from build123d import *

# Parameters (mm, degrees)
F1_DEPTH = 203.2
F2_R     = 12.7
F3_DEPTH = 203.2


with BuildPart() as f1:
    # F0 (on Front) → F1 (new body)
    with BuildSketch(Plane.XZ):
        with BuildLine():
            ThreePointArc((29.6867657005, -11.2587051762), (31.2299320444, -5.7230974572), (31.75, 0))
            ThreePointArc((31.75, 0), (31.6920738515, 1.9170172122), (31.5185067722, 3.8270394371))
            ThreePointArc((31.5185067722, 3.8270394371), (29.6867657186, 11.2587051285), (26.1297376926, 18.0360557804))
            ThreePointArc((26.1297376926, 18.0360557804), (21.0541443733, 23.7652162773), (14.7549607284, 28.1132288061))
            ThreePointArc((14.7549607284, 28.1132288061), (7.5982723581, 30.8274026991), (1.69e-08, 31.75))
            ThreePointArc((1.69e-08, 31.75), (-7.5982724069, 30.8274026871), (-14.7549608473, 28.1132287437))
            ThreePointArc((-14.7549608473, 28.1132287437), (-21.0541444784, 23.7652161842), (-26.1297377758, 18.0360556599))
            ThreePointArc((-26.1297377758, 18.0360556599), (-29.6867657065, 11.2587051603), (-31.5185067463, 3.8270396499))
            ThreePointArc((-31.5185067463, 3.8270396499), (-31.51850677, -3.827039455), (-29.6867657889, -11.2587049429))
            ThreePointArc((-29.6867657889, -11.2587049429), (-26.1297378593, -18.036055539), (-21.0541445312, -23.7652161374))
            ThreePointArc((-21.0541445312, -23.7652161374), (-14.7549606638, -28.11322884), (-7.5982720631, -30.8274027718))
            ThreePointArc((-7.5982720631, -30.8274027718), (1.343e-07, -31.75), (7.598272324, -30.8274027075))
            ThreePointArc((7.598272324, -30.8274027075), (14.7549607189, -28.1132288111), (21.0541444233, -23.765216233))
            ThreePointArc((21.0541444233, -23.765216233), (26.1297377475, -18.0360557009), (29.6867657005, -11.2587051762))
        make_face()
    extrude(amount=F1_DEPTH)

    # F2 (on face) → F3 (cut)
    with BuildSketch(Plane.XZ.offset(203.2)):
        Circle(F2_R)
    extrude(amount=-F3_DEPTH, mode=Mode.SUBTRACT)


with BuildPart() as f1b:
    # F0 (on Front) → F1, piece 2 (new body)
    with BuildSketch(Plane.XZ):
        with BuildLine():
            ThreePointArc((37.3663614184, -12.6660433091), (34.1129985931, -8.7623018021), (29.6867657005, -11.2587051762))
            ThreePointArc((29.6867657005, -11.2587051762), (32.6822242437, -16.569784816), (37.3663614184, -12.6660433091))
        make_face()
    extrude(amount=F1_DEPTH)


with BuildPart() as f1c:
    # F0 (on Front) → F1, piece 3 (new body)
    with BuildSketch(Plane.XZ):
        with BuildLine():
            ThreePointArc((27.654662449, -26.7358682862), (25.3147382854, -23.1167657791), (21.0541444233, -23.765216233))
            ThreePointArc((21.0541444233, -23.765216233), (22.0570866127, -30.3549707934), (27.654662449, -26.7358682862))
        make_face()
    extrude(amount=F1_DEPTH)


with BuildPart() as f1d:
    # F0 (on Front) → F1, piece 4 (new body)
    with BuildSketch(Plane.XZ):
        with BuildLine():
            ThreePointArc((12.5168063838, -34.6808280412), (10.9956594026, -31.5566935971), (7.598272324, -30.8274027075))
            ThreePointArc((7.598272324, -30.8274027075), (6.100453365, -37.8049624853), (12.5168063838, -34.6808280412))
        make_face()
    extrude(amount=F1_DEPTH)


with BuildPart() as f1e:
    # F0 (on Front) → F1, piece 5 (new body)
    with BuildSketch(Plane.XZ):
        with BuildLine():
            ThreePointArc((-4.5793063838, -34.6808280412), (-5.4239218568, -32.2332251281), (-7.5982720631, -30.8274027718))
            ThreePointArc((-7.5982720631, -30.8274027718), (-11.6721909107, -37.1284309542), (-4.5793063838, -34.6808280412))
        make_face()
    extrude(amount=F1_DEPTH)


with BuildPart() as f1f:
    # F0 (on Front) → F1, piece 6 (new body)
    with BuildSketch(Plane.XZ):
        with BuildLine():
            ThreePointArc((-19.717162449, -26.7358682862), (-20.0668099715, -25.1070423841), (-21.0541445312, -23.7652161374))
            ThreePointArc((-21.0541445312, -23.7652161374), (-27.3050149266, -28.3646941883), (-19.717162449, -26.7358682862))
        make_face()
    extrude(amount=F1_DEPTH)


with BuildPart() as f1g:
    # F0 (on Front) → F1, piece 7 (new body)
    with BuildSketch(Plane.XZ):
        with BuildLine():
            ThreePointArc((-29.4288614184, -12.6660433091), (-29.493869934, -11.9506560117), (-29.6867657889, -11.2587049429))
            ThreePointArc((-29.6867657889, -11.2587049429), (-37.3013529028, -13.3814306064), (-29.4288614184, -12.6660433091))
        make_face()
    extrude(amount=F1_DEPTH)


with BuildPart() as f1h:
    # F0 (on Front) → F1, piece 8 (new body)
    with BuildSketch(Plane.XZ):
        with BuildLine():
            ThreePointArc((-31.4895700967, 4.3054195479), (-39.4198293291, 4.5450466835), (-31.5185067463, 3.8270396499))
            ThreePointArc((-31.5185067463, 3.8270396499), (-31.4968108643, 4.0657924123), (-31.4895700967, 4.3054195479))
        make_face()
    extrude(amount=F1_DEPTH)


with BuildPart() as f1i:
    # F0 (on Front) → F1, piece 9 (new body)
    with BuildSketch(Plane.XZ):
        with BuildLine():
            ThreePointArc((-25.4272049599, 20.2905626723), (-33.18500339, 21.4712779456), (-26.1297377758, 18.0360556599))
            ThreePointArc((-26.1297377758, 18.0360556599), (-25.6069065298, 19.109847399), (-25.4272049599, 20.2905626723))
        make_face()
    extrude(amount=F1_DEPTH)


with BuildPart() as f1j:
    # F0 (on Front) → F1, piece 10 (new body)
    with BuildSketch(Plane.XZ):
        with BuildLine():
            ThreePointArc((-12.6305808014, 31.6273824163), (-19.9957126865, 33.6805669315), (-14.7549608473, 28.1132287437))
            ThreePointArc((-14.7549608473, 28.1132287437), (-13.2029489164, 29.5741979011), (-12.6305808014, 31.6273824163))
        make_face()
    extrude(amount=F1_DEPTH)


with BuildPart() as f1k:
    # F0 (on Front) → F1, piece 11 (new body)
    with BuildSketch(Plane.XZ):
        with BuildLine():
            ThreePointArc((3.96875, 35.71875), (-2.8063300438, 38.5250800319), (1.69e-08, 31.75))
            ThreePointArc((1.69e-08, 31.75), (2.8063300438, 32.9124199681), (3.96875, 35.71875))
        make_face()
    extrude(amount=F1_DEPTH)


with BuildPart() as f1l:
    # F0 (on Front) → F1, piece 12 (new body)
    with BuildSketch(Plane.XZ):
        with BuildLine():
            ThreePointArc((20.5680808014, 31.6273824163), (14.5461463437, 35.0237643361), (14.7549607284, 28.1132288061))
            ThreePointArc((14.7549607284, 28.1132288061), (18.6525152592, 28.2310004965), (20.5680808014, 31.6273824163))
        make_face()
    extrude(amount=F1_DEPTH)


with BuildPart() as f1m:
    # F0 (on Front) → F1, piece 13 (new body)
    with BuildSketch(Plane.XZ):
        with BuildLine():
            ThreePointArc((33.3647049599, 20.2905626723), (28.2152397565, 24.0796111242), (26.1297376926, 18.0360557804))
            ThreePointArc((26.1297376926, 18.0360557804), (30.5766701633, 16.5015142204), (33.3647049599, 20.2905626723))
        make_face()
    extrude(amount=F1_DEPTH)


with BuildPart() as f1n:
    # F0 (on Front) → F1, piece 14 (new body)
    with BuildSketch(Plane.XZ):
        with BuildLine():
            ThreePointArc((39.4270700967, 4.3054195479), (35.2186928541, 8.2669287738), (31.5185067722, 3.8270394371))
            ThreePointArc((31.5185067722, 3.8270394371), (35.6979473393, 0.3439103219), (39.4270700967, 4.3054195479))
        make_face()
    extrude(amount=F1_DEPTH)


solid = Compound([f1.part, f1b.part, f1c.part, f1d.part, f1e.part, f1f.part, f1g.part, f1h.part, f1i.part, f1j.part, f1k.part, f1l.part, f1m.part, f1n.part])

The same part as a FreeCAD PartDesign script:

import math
import FreeCAD as App
import Part
import Sketcher

V = App.Vector
Q = App.Units.Quantity

doc = App.newDocument("Part")
params = doc.addObject("Spreadsheet::Sheet", "Params")
for row, (alias, value) in enumerate([
    ("sketch1_radius", "1.25 in"),
    ("pad1_length", "8 in"),
    ("sketch2_diameter", "1 in"),
    ("pocket1_length", "8 in"),
    ("sketch3_radius", "0.15625 in"),
    ("pad2_length", "8 in"),
    ("sketch4_radius", "0.15625 in"),
    ("pad3_length", "8 in"),
    ("sketch5_radius", "0.15625 in"),
    ("pad4_length", "8 in"),
    ("sketch6_radius", "0.15625 in"),
    ("pad5_length", "8 in"),
    ("sketch7_radius", "0.15625 in"),
    ("pad6_length", "8 in"),
    ("sketch8_radius", "0.15625 in"),
    ("pad7_length", "8 in"),
    ("sketch9_radius", "0.15625 in"),
    ("pad8_length", "8 in"),
    ("sketch10_radius", "0.15625 in"),
    ("pad9_length", "8 in"),
    ("sketch11_radius", "0.15625 in"),
    ("pad10_length", "8 in"),
    ("sketch12_radius", "0.15625 in"),
    ("pad11_length", "8 in"),
    ("sketch13_radius", "0.15625 in"),
    ("pad12_length", "8 in"),
    ("sketch14_radius", "0.15625 in"),
    ("pad13_length", "8 in"),
    ("sketch15_radius", "0.15625 in"),
    ("pad14_length", "8 in"),
], start=1):
    params.set(f"A{row}", alias)
    params.set(f"B{row}", "=" + value)
    params.setAlias(f"B{row}", alias)

body = doc.addObject("PartDesign::Body", "Body")

# Sketch on XZ plane
sketch1 = body.newObject("Sketcher::SketchObject", "Sketch")
sketch1.AttachmentSupport = (doc.getObject("XZ_Plane"), [""])
sketch1.MapMode = "FlatFace"
sketch1.addGeometry([
    Part.ArcOfCircle(Part.Circle(V(0, 0, 0), V(0, 0, 1), 31.7), math.radians(-21), math.radians(0)),  # 0
    Part.ArcOfCircle(Part.Circle(V(0, 0, 0), V(0, 0, 1), 31.8), math.radians(0), math.radians(6.92)),  # 1
    Part.ArcOfCircle(Part.Circle(V(0, 0, 0), V(0, 0, 1), 31.7), math.radians(7), math.radians(35)),  # 2
    Part.ArcOfCircle(Part.Circle(V(0, 0, 0), V(0, 0, 1), 31.8), math.radians(35), math.radians(62)),  # 3
    Part.ArcOfCircle(Part.Circle(V(0, 0, 0), V(0, 0, 1), 31.8), math.radians(62), math.radians(90)),  # 4
    Part.ArcOfCircle(Part.Circle(V(0, 0, 0), V(0, 0, 1), 31.7), math.radians(90), math.radians(145)),  # 5
    Part.ArcOfCircle(Part.Circle(V(0, 0, 0), V(0, 0, 1), 31.8), math.radians(145), math.radians(173)),  # 6
    Part.ArcOfCircle(Part.Circle(V(0, 0, 0), V(0, 0, 1), 31.7), math.radians(173), math.radians(201)),  # 7
    Part.ArcOfCircle(Part.Circle(V(0, 0, 0), V(0, 0, 1), 31.7), math.radians(-159), math.radians(-132)),  # 8
    Part.ArcOfCircle(Part.Circle(V(0, 0, 0), V(0, 0, 1), 31.7), math.radians(-132), math.radians(-104)),  # 9
    Part.ArcOfCircle(Part.Circle(V(0, 0, 0), V(0, 0, 1), 31.8), math.radians(-104), math.radians(-76)),  # 10
    Part.ArcOfCircle(Part.Circle(V(0, 0, 0), V(0, 0, 1), 31.7), math.radians(-76), math.radians(-48)),  # 11
    Part.ArcOfCircle(Part.Circle(V(0, 0, 0), V(0, 0, 1), 31.8), math.radians(-48), math.radians(-21)),  # 12
], False)
sketch1.addConstraint([
    Sketcher.Constraint("Tangent", 0, 2, 1, 1),
    Sketcher.Constraint("Tangent", 1, 2, 2, 1),
    Sketcher.Constraint("Tangent", 2, 2, 3, 1),
    Sketcher.Constraint("Tangent", 3, 2, 4, 1),
    Sketcher.Constraint("Tangent", 4, 2, 5, 1),
    Sketcher.Constraint("Tangent", 5, 2, 6, 1),
    Sketcher.Constraint("Tangent", 6, 2, 7, 1),
    Sketcher.Constraint("Tangent", 7, 2, 8, 1),
    Sketcher.Constraint("Tangent", 8, 2, 9, 1),
    Sketcher.Constraint("Tangent", 9, 2, 10, 1),
    Sketcher.Constraint("Tangent", 10, 2, 11, 1),
    Sketcher.Constraint("Tangent", 11, 2, 12, 1),
    Sketcher.Constraint("Tangent", 12, 2, 0, 1),
    Sketcher.Constraint("Coincident", 0, 3, -1, 1),
    Sketcher.Constraint("Coincident", 2, 3, -1, 1),
    Sketcher.Constraint("Coincident", 4, 3, -1, 1),
    Sketcher.Constraint("Coincident", 6, 3, -1, 1),
    Sketcher.Constraint("Coincident", 8, 3, -1, 1),
    Sketcher.Constraint("Coincident", 10, 3, -1, 1),
    Sketcher.Constraint("PointOnObject", 0, 2, -1),
    Sketcher.Constraint("PointOnObject", 4, 2, -2),
    Sketcher.Constraint("Horizontal", 2, 2, 5, 2),
    Sketcher.Constraint("Horizontal", 1, 2, 6, 2),
    Sketcher.Constraint("Horizontal", 9, 2, 10, 2),
    Sketcher.Constraint("Horizontal", 8, 2, 11, 2),
    Sketcher.Constraint("Horizontal", 7, 2, 12, 2),
    Sketcher.Constraint("Radius", 0, Q("1.25 in")),
    Sketcher.Constraint("DistanceY", -1, 1, 1, 2, Q("3.827039 mm")),
    Sketcher.Constraint("DistanceX", -1, 1, 3, 2, Q("14.754961 mm")),
    Sketcher.Constraint("DistanceX", 2, 2, 1, 2, Q("5.388769 mm")),
    Sketcher.Constraint("DistanceX", 6, 2, 7, 2, Q("1.831741 mm")),
    Sketcher.Constraint("DistanceX", 7, 2, 8, 2, Q("8.632621 mm")),
    Sketcher.Constraint("DistanceX", 9, 2, -1, 1, Q("7.598272 mm")),
])
sketch1.setExpression("Constraints[26]", "Params.sketch1_radius")
pad1 = body.newObject("PartDesign::Pad", "Pad")
pad1.Profile = sketch1
pad1.setExpression("Length", "Params.pad1_length")

# Sketch on XZ plane
sketch2 = body.newObject("Sketcher::SketchObject", "Sketch001")
sketch2.AttachmentSupport = (doc.getObject("XZ_Plane"), [""])
sketch2.MapMode = "FlatFace"
sketch2.AttachmentOffset = App.Placement(V(0, 0, 8 * 25.4), App.Rotation())
sketch2.addGeometry(Part.Circle(V(0, 0, 0), V(0, 0, 1), 13), False)
sketch2.addConstraint([
    Sketcher.Constraint("Coincident", 0, 3, -1, 1),
    Sketcher.Constraint("Diameter", 0, Q("1 in")),
])
sketch2.setExpression("Constraints[1]", "Params.sketch2_diameter")
pocket1 = body.newObject("PartDesign::Pocket", "Pocket")
pocket1.Profile = sketch2
pocket1.setExpression("Length", "Params.pocket1_length")
body2 = doc.addObject("PartDesign::Body", "Body001")

# Sketch on XZ plane
sketch3 = body2.newObject("Sketcher::SketchObject", "Sketch002")
sketch3.AttachmentSupport = (doc.getObject("XZ_Plane001"), [""])
sketch3.MapMode = "FlatFace"
sketch3.addGeometry([
    Part.ArcOfCircle(Part.Circle(V(33.4, -12.7, 0), V(0, 0, 1), 4), math.radians(0), math.radians(159)),
    Part.ArcOfCircle(Part.Circle(V(33.4, -12.7, 0), V(0, 0, 1), 4), math.radians(159), math.radians(360)),
], False)
sketch3.addConstraint([
    Sketcher.Constraint("Tangent", 0, 1, 1, 2),
    Sketcher.Constraint("Coincident", 1, 1, 0, 2),
    Sketcher.Constraint("Horizontal", 1, 3, 0, 1),
    Sketcher.Constraint("Radius", 0, Q("0.15625 in")),
    Sketcher.Constraint("DistanceX", -1, 1, 0, 3, Q("33.397611 mm")),
    Sketcher.Constraint("DistanceY", 0, 3, 1, 1, Q("1.407338 mm")),
    Sketcher.Constraint("DistanceY", 0, 3, -1, 1, Q("12.666043 mm")),
])
sketch3.setExpression("Constraints[3]", "Params.sketch3_radius")
pad2 = body2.newObject("PartDesign::Pad", "Pad001")
pad2.Profile = sketch3
pad2.setExpression("Length", "Params.pad2_length")
body3 = doc.addObject("PartDesign::Body", "Body002")

# Sketch on XZ plane
sketch4 = body3.newObject("Sketcher::SketchObject", "Sketch003")
sketch4.AttachmentSupport = (doc.getObject("XZ_Plane002"), [""])
sketch4.MapMode = "FlatFace"
sketch4.addGeometry([
    Part.ArcOfCircle(Part.Circle(V(23.7, -26.7, 0), V(0, 0, 1), 4), math.radians(0), math.radians(132)),
    Part.ArcOfCircle(Part.Circle(V(23.7, -26.7, 0), V(0, 0, 1), 4), math.radians(132), math.radians(360)),
], False)
sketch4.addConstraint([
    Sketcher.Constraint("Tangent", 0, 1, 1, 2),
    Sketcher.Constraint("Coincident", 1, 1, 0, 2),
    Sketcher.Constraint("Horizontal", 1, 3, 0, 1),
    Sketcher.Constraint("Radius", 0, Q("0.15625 in")),
    Sketcher.Constraint("DistanceY", 0, 3, -1, 1, Q("26.735868 mm")),
    Sketcher.Constraint("DistanceX", 1, 1, 0, 3, Q("2.631768 mm")),
    Sketcher.Constraint("DistanceX", -1, 1, 0, 3, Q("23.685912 mm")),
])
sketch4.setExpression("Constraints[3]", "Params.sketch4_radius")
pad3 = body3.newObject("PartDesign::Pad", "Pad002")
pad3.Profile = sketch4
pad3.setExpression("Length", "Params.pad3_length")
body4 = doc.addObject("PartDesign::Body", "Body003")

# Sketch on XZ plane
sketch5 = body4.newObject("Sketcher::SketchObject", "Sketch004")
sketch5.AttachmentSupport = (doc.getObject("XZ_Plane003"), [""])
sketch5.MapMode = "FlatFace"
sketch5.addGeometry([
    Part.ArcOfCircle(Part.Circle(V(8.5, -34.7, 0), V(0, 0, 1), 4), math.radians(0), math.radians(104)),
    Part.ArcOfCircle(Part.Circle(V(8.5, -34.7, 0), V(0, 0, 1), 4), math.radians(104), math.radians(360)),
], False)
sketch5.addConstraint([
    Sketcher.Constraint("Tangent", 0, 1, 1, 2),
    Sketcher.Constraint("Coincident", 1, 1, 0, 2),
    Sketcher.Constraint("Horizontal", 1, 3, 0, 1),
    Sketcher.Constraint("Radius", 0, Q("0.15625 in")),
    Sketcher.Constraint("DistanceY", 0, 3, -1, 1, Q("34.680828 mm")),
    Sketcher.Constraint("DistanceX", -1, 1, 0, 3, Q("8.548056 mm")),
    Sketcher.Constraint("DistanceX", -1, 1, 1, 1, Q("7.598272 mm")),
])
sketch5.setExpression("Constraints[3]", "Params.sketch5_radius")
pad4 = body4.newObject("PartDesign::Pad", "Pad003")
pad4.Profile = sketch5
pad4.setExpression("Length", "Params.pad4_length")
body5 = doc.addObject("PartDesign::Body", "Body004")

# Sketch on XZ plane
sketch6 = body5.newObject("Sketcher::SketchObject", "Sketch005")
sketch6.AttachmentSupport = (doc.getObject("XZ_Plane004"), [""])
sketch6.MapMode = "FlatFace"
sketch6.addGeometry([
    Part.ArcOfCircle(Part.Circle(V(-8.5, -34.7, 0), V(0, 0, 1), 4), math.radians(0), math.radians(76)),
    Part.ArcOfCircle(Part.Circle(V(-8.5, -34.7, 0), V(0, 0, 1), 4), math.radians(76), math.radians(360)),
], False)
sketch6.addConstraint([
    Sketcher.Constraint("Tangent", 0, 1, 1, 2),
    Sketcher.Constraint("Coincident", 1, 1, 0, 2),
    Sketcher.Constraint("Horizontal", 1, 3, 0, 1),
    Sketcher.Constraint("Radius", 0, Q("0.15625 in")),
    Sketcher.Constraint("DistanceY", 0, 3, -1, 1, Q("34.680828 mm")),
    Sketcher.Constraint("DistanceX", 0, 3, -1, 1, Q("8.548056 mm")),
    Sketcher.Constraint("DistanceX", 1, 1, -1, 1, Q("7.598272 mm")),
])
sketch6.setExpression("Constraints[3]", "Params.sketch6_radius")
pad5 = body5.newObject("PartDesign::Pad", "Pad004")
pad5.Profile = sketch6
pad5.setExpression("Length", "Params.pad5_length")
body6 = doc.addObject("PartDesign::Body", "Body005")

# Sketch on XZ plane
sketch7 = body6.newObject("Sketcher::SketchObject", "Sketch006")
sketch7.AttachmentSupport = (doc.getObject("XZ_Plane005"), [""])
sketch7.MapMode = "FlatFace"
sketch7.addGeometry([
    Part.ArcOfCircle(Part.Circle(V(-23.7, -26.7, 0), V(0, 0, 1), 4), math.radians(0), math.radians(48)),
    Part.ArcOfCircle(Part.Circle(V(-23.7, -26.7, 0), V(0, 0, 1), 4), math.radians(48), math.radians(360)),
], False)
sketch7.addConstraint([
    Sketcher.Constraint("Tangent", 0, 1, 1, 2),
    Sketcher.Constraint("Coincident", 1, 1, 0, 2),
    Sketcher.Constraint("Horizontal", 1, 3, 0, 1),
    Sketcher.Constraint("Radius", 0, Q("0.15625 in")),
    Sketcher.Constraint("DistanceY", 0, 3, -1, 1, Q("26.735868 mm")),
    Sketcher.Constraint("DistanceX", 0, 3, -1, 1, Q("23.685912 mm")),
    Sketcher.Constraint("DistanceX", 1, 1, -1, 1, Q("21.054145 mm")),
])
sketch7.setExpression("Constraints[3]", "Params.sketch7_radius")
pad6 = body6.newObject("PartDesign::Pad", "Pad005")
pad6.Profile = sketch7
pad6.setExpression("Length", "Params.pad6_length")
body7 = doc.addObject("PartDesign::Body", "Body006")

# Sketch on XZ plane
sketch8 = body7.newObject("Sketcher::SketchObject", "Sketch007")
sketch8.AttachmentSupport = (doc.getObject("XZ_Plane006"), [""])
sketch8.MapMode = "FlatFace"
sketch8.addGeometry([
    Part.ArcOfCircle(Part.Circle(V(-33.4, -12.7, 0), V(0, 0, 1), 4), math.radians(0), math.radians(21)),
    Part.ArcOfCircle(Part.Circle(V(-33.4, -12.7, 0), V(0, 0, 1), 4), math.radians(21), math.radians(360)),
], False)
sketch8.addConstraint([
    Sketcher.Constraint("Tangent", 0, 1, 1, 2),
    Sketcher.Constraint("Coincident", 1, 1, 0, 2),
    Sketcher.Constraint("Horizontal", 1, 3, 0, 1),
    Sketcher.Constraint("Radius", 0, Q("0.15625 in")),
    Sketcher.Constraint("DistanceX", 0, 3, -1, 1, Q("33.397611 mm")),
    Sketcher.Constraint("DistanceY", 0, 1, 1, 1, Q("1.407338 mm")),
    Sketcher.Constraint("DistanceY", 0, 3, -1, 1, Q("12.666043 mm")),
])
sketch8.setExpression("Constraints[3]", "Params.sketch8_radius")
pad7 = body7.newObject("PartDesign::Pad", "Pad006")
pad7.Profile = sketch8
pad7.setExpression("Length", "Params.pad7_length")
body8 = doc.addObject("PartDesign::Body", "Body007")

# Sketch on XZ plane
sketch9 = body8.newObject("Sketcher::SketchObject", "Sketch008")
sketch9.AttachmentSupport = (doc.getObject("XZ_Plane007"), [""])
sketch9.MapMode = "FlatFace"
sketch9.addGeometry([
    Part.ArcOfCircle(Part.Circle(V(-35.46, 4.31, 0), V(0, 0, 1), 3.97), math.radians(0), math.radians(353)),
    Part.ArcOfCircle(Part.Circle(V(-35.46, 4.31, 0), V(0, 0, 1), 3.97), math.radians(-6.92), math.radians(0)),
], False)
sketch9.addConstraint([
    Sketcher.Constraint("Tangent", 0, 1, 1, 2),
    Sketcher.Constraint("Coincident", 1, 1, 0, 2),
    Sketcher.Constraint("Horizontal", 1, 3, 0, 1),
    Sketcher.Constraint("Radius", 0, Q("0.15625 in")),
    Sketcher.Constraint("DistanceX", 0, 3, -1, 1, Q("35.45832 mm")),
    Sketcher.Constraint("DistanceY", -1, 1, 0, 3, Q("4.30542 mm")),
    Sketcher.Constraint("DistanceY", -1, 1, 1, 1, Q("3.82704 mm")),
])
sketch9.setExpression("Constraints[3]", "Params.sketch9_radius")
pad8 = body8.newObject("PartDesign::Pad", "Pad007")
pad8.Profile = sketch9
pad8.setExpression("Length", "Params.pad8_length")
body9 = doc.addObject("PartDesign::Body", "Body008")

# Sketch on XZ plane
sketch10 = body9.newObject("Sketcher::SketchObject", "Sketch009")
sketch10.AttachmentSupport = (doc.getObject("XZ_Plane008"), [""])
sketch10.MapMode = "FlatFace"
sketch10.addGeometry([
    Part.ArcOfCircle(Part.Circle(V(-29.4, 20.3, 0), V(0, 0, 1), 4), math.radians(0), math.radians(325)),
    Part.ArcOfCircle(Part.Circle(V(-29.4, 20.3, 0), V(0, 0, 1), 4), math.radians(-35), math.radians(0)),
], False)
sketch10.addConstraint([
    Sketcher.Constraint("Tangent", 0, 1, 1, 2),
    Sketcher.Constraint("Coincident", 1, 1, 0, 2),
    Sketcher.Constraint("Horizontal", 1, 3, 0, 1),
    Sketcher.Constraint("Radius", 0, Q("0.15625 in")),
    Sketcher.Constraint("DistanceX", 0, 3, -1, 1, Q("29.395955 mm")),
    Sketcher.Constraint("DistanceY", -1, 1, 0, 3, Q("20.290563 mm")),
    Sketcher.Constraint("DistanceX", 1, 1, -1, 1, Q("26.129738 mm")),
])
sketch10.setExpression("Constraints[3]", "Params.sketch10_radius")
pad9 = body9.newObject("PartDesign::Pad", "Pad008")
pad9.Profile = sketch10
pad9.setExpression("Length", "Params.pad9_length")
body10 = doc.addObject("PartDesign::Body", "Body009")

# Sketch on XZ plane
sketch11 = body10.newObject("Sketcher::SketchObject", "Sketch010")
sketch11.AttachmentSupport = (doc.getObject("XZ_Plane009"), [""])
sketch11.MapMode = "FlatFace"
sketch11.addGeometry([
    Part.ArcOfCircle(Part.Circle(V(-16.6, 31.6, 0), V(0, 0, 1), 4), math.radians(0), math.radians(298)),
    Part.ArcOfCircle(Part.Circle(V(-16.6, 31.6, 0), V(0, 0, 1), 4), math.radians(-62), math.radians(0)),
], False)
sketch11.addConstraint([
    Sketcher.Constraint("Tangent", 0, 1, 1, 2),
    Sketcher.Constraint("Coincident", 1, 1, 0, 2),
    Sketcher.Constraint("Horizontal", 1, 3, 0, 1),
    Sketcher.Constraint("Radius", 0, Q("0.15625 in")),
    Sketcher.Constraint("DistanceX", 0, 3, -1, 1, Q("16.599331 mm")),
    Sketcher.Constraint("DistanceX", 1, 1, -1, 1, Q("14.754961 mm")),
    Sketcher.Constraint("DistanceY", -1, 1, 1, 1, Q("28.113229 mm")),
])
sketch11.setExpression("Constraints[3]", "Params.sketch11_radius")
pad10 = body10.newObject("PartDesign::Pad", "Pad009")
pad10.Profile = sketch11
pad10.setExpression("Length", "Params.pad10_length")
body11 = doc.addObject("PartDesign::Body", "Body010")

# Sketch on XZ plane
sketch12 = body11.newObject("Sketcher::SketchObject", "Sketch011")
sketch12.AttachmentSupport = (doc.getObject("XZ_Plane010"), [""])
sketch12.MapMode = "FlatFace"
sketch12.addGeometry([
    Part.ArcOfCircle(Part.Circle(V(0, 35.7, 0), V(0, 0, 1), 4), math.radians(0), math.radians(270)),
    Part.ArcOfCircle(Part.Circle(V(0, 35.7, 0), V(0, 0, 1), 4), math.radians(-90), math.radians(0)),
], False)
sketch12.addConstraint([
    Sketcher.Constraint("Tangent", 0, 1, 1, 2),
    Sketcher.Constraint("Coincident", 1, 1, 0, 2),
    Sketcher.Constraint("PointOnObject", 0, 3, -2),
    Sketcher.Constraint("PointOnObject", 1, 1, -2),
    Sketcher.Constraint("Horizontal", 1, 3, 0, 1),
    Sketcher.Constraint("Radius", 0, Q("0.15625 in")),
    Sketcher.Constraint("DistanceY", -1, 1, 1, 1, Q("1.25 in")),
])
sketch12.setExpression("Constraints[5]", "Params.sketch12_radius")
pad11 = body11.newObject("PartDesign::Pad", "Pad010")
pad11.Profile = sketch12
pad11.setExpression("Length", "Params.pad11_length")
body12 = doc.addObject("PartDesign::Body", "Body011")

# Sketch on XZ plane
sketch13 = body12.newObject("Sketcher::SketchObject", "Sketch012")
sketch13.AttachmentSupport = (doc.getObject("XZ_Plane011"), [""])
sketch13.MapMode = "FlatFace"
sketch13.addGeometry([
    Part.ArcOfCircle(Part.Circle(V(16.6, 31.6, 0), V(0, 0, 1), 4), math.radians(0), math.radians(242)),
    Part.ArcOfCircle(Part.Circle(V(16.6, 31.6, 0), V(0, 0, 1), 4), math.radians(-118), math.radians(0)),
], False)
sketch13.addConstraint([
    Sketcher.Constraint("Tangent", 0, 1, 1, 2),
    Sketcher.Constraint("Coincident", 1, 1, 0, 2),
    Sketcher.Constraint("Horizontal", 1, 3, 0, 1),
    Sketcher.Constraint("Radius", 0, Q("0.15625 in")),
    Sketcher.Constraint("DistanceX", -1, 1, 0, 3, Q("16.599331 mm")),
    Sketcher.Constraint("DistanceX", -1, 1, 1, 1, Q("14.754961 mm")),
    Sketcher.Constraint("DistanceY", -1, 1, 1, 1, Q("28.113229 mm")),
])
sketch13.setExpression("Constraints[3]", "Params.sketch13_radius")
pad12 = body12.newObject("PartDesign::Pad", "Pad011")
pad12.Profile = sketch13
pad12.setExpression("Length", "Params.pad12_length")
body13 = doc.addObject("PartDesign::Body", "Body012")

# Sketch on XZ plane
sketch14 = body13.newObject("Sketcher::SketchObject", "Sketch013")
sketch14.AttachmentSupport = (doc.getObject("XZ_Plane012"), [""])
sketch14.MapMode = "FlatFace"
sketch14.addGeometry([
    Part.ArcOfCircle(Part.Circle(V(29.4, 20.3, 0), V(0, 0, 1), 4), math.radians(0), math.radians(215)),
    Part.ArcOfCircle(Part.Circle(V(29.4, 20.3, 0), V(0, 0, 1), 4), math.radians(-145), math.radians(0)),
], False)
sketch14.addConstraint([
    Sketcher.Constraint("Tangent", 0, 1, 1, 2),
    Sketcher.Constraint("Coincident", 1, 1, 0, 2),
    Sketcher.Constraint("Horizontal", 1, 3, 0, 1),
    Sketcher.Constraint("Radius", 0, Q("0.15625 in")),
    Sketcher.Constraint("DistanceX", -1, 1, 0, 3, Q("29.395955 mm")),
    Sketcher.Constraint("DistanceY", -1, 1, 0, 3, Q("20.290563 mm")),
    Sketcher.Constraint("DistanceX", -1, 1, 1, 1, Q("26.129738 mm")),
])
sketch14.setExpression("Constraints[3]", "Params.sketch14_radius")
pad13 = body13.newObject("PartDesign::Pad", "Pad012")
pad13.Profile = sketch14
pad13.setExpression("Length", "Params.pad13_length")
body14 = doc.addObject("PartDesign::Body", "Body013")

# Sketch on XZ plane
sketch15 = body14.newObject("Sketcher::SketchObject", "Sketch014")
sketch15.AttachmentSupport = (doc.getObject("XZ_Plane013"), [""])
sketch15.MapMode = "FlatFace"
sketch15.addGeometry([
    Part.ArcOfCircle(Part.Circle(V(35.5, 4.3, 0), V(0, 0, 1), 4), math.radians(0), math.radians(187)),
    Part.ArcOfCircle(Part.Circle(V(35.5, 4.3, 0), V(0, 0, 1), 4), math.radians(-173), math.radians(0)),
], False)
sketch15.addConstraint([
    Sketcher.Constraint("Tangent", 0, 1, 1, 2),
    Sketcher.Constraint("Coincident", 1, 1, 0, 2),
    Sketcher.Constraint("Horizontal", 1, 3, 0, 1),
    Sketcher.Constraint("Radius", 0, Q("0.15625 in")),
    Sketcher.Constraint("DistanceX", -1, 1, 0, 3, Q("35.45832 mm")),
    Sketcher.Constraint("DistanceY", -1, 1, 0, 3, Q("4.30542 mm")),
    Sketcher.Constraint("DistanceY", -1, 1, 1, 1, Q("3.827039 mm")),
])
sketch15.setExpression("Constraints[3]", "Params.sketch15_radius")
pad14 = body14.newObject("PartDesign::Pad", "Pad013")
pad14.Profile = sketch15
pad14.setExpression("Length", "Params.pad14_length")

doc.recompute()
